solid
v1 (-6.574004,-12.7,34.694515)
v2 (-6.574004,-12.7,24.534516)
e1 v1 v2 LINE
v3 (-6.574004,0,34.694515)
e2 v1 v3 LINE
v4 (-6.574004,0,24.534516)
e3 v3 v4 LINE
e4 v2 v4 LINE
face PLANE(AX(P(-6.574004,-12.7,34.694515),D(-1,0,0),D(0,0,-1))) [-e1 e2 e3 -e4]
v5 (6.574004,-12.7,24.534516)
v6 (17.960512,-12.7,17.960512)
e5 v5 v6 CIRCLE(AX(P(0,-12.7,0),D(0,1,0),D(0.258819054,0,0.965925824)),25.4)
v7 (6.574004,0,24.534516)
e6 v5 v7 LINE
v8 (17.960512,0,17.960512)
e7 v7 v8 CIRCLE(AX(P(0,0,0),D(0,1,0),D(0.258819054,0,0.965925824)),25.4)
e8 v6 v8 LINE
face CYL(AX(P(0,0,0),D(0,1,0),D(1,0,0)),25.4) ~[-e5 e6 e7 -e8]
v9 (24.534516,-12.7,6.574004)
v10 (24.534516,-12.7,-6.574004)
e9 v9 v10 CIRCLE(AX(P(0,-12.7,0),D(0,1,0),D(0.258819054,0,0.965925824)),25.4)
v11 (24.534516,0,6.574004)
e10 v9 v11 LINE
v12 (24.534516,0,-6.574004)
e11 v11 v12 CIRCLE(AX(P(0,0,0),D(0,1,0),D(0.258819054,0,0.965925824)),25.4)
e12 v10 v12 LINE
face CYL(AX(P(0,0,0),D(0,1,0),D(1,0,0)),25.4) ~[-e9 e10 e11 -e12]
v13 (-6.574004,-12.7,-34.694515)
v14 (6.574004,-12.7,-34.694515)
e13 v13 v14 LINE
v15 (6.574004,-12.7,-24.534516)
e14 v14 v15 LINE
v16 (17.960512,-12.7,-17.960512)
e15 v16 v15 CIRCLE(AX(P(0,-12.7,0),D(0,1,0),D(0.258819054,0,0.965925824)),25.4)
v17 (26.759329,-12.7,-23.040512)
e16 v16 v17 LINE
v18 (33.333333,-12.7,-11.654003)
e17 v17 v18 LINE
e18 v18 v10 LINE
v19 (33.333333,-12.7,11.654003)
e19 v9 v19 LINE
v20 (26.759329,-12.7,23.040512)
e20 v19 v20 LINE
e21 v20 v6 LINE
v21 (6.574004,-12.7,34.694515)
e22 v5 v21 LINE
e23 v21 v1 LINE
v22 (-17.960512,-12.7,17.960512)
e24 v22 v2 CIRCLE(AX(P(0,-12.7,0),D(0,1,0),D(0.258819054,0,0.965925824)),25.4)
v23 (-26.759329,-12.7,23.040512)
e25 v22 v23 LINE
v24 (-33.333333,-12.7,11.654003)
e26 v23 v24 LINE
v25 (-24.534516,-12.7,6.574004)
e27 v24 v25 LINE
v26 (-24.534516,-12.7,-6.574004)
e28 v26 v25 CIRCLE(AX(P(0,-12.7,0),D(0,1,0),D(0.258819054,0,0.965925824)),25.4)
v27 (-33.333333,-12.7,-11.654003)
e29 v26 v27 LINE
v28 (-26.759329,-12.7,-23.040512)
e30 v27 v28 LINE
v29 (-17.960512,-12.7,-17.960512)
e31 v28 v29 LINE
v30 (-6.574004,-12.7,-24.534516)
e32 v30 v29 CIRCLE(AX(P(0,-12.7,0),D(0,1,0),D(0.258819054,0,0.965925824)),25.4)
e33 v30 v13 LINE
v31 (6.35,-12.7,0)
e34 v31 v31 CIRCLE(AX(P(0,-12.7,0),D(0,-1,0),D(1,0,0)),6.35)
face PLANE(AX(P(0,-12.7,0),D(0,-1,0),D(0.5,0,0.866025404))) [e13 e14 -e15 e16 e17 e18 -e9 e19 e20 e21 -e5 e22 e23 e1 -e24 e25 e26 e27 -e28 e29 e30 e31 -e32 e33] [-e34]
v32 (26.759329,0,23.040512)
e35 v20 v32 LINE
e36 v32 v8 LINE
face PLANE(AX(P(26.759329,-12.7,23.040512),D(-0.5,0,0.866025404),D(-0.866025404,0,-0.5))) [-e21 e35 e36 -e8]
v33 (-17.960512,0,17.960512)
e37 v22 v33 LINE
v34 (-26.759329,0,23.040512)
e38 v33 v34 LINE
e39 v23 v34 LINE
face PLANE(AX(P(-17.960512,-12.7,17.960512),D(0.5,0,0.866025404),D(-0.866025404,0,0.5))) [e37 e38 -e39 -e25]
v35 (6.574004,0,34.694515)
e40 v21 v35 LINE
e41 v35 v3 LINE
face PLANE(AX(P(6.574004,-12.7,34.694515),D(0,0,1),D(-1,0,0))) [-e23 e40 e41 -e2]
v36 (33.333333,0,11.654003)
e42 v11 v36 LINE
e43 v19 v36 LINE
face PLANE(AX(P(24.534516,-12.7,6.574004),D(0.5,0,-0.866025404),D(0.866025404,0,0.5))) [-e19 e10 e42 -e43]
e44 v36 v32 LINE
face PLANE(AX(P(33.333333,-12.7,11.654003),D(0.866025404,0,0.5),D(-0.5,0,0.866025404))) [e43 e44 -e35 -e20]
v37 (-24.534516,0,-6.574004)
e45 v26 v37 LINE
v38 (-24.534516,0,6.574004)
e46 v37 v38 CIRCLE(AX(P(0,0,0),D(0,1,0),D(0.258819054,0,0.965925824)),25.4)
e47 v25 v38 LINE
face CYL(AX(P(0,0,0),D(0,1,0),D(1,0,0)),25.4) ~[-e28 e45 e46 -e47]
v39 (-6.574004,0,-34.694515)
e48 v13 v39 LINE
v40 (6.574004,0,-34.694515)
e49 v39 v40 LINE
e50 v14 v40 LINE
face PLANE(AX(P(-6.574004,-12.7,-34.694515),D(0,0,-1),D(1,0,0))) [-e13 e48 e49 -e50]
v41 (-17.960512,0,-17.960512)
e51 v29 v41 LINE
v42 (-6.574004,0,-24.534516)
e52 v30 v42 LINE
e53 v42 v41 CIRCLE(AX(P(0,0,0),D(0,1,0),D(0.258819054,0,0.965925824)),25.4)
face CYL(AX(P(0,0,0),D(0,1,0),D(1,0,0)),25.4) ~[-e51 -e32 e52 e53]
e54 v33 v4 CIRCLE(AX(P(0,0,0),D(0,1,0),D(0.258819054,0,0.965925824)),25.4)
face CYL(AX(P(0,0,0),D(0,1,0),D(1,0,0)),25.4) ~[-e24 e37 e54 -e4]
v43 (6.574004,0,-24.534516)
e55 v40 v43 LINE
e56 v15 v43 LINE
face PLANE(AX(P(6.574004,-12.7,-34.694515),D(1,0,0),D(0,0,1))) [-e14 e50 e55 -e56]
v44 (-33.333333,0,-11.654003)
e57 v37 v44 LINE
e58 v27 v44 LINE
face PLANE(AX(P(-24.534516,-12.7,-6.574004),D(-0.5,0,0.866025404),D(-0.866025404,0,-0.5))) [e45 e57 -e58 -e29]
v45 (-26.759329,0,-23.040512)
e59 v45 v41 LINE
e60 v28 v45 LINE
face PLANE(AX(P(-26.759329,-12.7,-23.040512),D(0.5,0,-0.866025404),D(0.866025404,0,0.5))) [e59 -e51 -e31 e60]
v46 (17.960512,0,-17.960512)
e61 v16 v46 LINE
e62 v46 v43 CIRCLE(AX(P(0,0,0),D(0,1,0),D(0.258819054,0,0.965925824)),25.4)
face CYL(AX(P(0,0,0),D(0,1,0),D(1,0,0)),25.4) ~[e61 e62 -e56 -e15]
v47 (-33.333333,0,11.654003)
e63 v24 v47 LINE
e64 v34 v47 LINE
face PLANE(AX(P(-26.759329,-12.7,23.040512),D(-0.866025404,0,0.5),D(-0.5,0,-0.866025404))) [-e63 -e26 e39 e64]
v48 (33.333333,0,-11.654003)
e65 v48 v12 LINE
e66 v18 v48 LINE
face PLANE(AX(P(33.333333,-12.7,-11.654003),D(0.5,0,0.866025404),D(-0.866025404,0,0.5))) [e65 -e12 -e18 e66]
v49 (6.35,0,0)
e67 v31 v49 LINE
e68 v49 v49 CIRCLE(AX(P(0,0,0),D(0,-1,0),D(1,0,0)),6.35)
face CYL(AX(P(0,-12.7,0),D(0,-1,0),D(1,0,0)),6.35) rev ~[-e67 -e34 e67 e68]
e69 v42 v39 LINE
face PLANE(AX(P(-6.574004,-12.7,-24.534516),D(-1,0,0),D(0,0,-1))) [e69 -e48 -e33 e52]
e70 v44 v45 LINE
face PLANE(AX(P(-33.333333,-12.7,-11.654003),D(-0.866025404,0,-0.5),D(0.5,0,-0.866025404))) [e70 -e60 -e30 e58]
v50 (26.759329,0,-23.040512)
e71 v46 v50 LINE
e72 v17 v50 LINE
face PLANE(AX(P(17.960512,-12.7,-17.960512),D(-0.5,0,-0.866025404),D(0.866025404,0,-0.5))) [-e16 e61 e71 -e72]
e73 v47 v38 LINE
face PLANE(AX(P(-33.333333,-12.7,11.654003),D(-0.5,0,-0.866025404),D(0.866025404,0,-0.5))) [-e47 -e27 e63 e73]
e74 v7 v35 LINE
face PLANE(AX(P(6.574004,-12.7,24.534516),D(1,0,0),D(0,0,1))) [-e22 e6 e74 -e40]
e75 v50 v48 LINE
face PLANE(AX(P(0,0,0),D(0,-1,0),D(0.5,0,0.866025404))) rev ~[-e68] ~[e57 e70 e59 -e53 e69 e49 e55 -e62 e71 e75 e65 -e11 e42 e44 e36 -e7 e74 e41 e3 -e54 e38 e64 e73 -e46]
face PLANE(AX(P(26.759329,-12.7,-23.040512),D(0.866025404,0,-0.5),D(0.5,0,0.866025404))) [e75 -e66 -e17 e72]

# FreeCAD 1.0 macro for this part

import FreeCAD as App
import Part
import Sketcher
Q = App.Units.Quantity


def add_polygon(sketch, points):
    """Adds a closed chain of lines whose ends are joined by coincident constraints."""
    first, n = sketch.GeometryCount, len(points)
    for a, b in zip(points, points[1:] + points[:1]):
        sketch.addGeometry(Part.LineSegment(App.Vector(*a, 0), App.Vector(*b, 0)), False)
    for i in range(n):
        sketch.addConstraint(Sketcher.Constraint("Coincident", first + i, 2, first + (i + 1) % n, 1))

doc = App.newDocument("Part")
body = doc.addObject("PartDesign::Body", "Body")

# Sketch on XZ plane
sketch1 = body.newObject("Sketcher::SketchObject", "Sketch")
sketch1.AttachmentSupport = (doc.getObject("XZ_Plane"), [""])
sketch1.MapMode = "FlatFace"
sketch1.addGeometry(Part.Circle(App.Vector(0, 0, 0), App.Vector(0, 0, 1), 25.4), False)
sketch1.addConstraint([
    Sketcher.Constraint("Coincident", 0, 3, -1, 1),
    Sketcher.Constraint("Diameter", 0, Q("2 in")),
])
pad1 = body.newObject("PartDesign::Pad", "Pad")
pad1.Profile = sketch1
pad1.Length = Q("0.5 in")

# Sketch on XZ plane
sketch2 = body.newObject("Sketcher::SketchObject", "Sketch001")
sketch2.AttachmentSupport = (doc.getObject("XZ_Plane"), [""])
sketch2.MapMode = "FlatFace"
sketch2.AttachmentOffset = App.Placement(App.Vector(0, 0, 0.5 * 25.4), App.Rotation())
add_polygon(sketch2, [(-6.574004, 24.534516), (0, 0), (6.574004, 24.534516), (6.574004, 34.694515), (-6.574004, 34.694515)])  # lines 0-4
sketch2.addConstraint([
    Sketcher.Constraint("Vertical", 2),
    Sketcher.Constraint("Horizontal", 3),
    Sketcher.Constraint("Vertical", 4),
    Sketcher.Constraint("Coincident", 0, 2, -1, 1),
    Sketcher.Constraint("Symmetric", 1, 2, 4, 2, -2),
    Sketcher.Constraint("Distance", 0, Q("1 in")),
    Sketcher.Constraint("DistanceY", 2, 1, 2, 2, Q("0.4 in")),
    Sketcher.Constraint("Angle", 0, Q("-74.999999 deg")),
])
pad2 = body.newObject("PartDesign::Pad", "Pad001")
pad2.Profile = sketch2
pad2.Length = Q("0.5 in")
pad2.Reversed = True

# Sketch on XZ plane
sketch3 = body.newObject("Sketcher::SketchObject", "Sketch002")
sketch3.AttachmentSupport = (doc.getObject("XZ_Plane"), [""])
sketch3.MapMode = "FlatFace"
sketch3.AttachmentOffset = App.Placement(App.Vector(0, 0, 0.5 * 25.4), App.Rotation())
add_polygon(sketch3, [(-6.574004, 24.534516), (0, 0), (6.574004, 24.534516), (6.574004, 34.694515), (-6.574004, 34.694515)])  # lines 0-4
sketch3.addConstraint([
    Sketcher.Constraint("Vertical", 2),
    Sketcher.Constraint("Horizontal", 3),
    Sketcher.Constraint("Vertical", 4),
    Sketcher.Constraint("Coincident", 0, 2, -1, 1),
    Sketcher.Constraint("Symmetric", 1, 2, 4, 2, -2),
    Sketcher.Constraint("Distance", 0, Q("1 in")),
    Sketcher.Constraint("DistanceY", 2, 1, 2, 2, Q("0.4 in")),
    Sketcher.Constraint("Angle", 0, Q("-74.999999 deg")),
])
pad3 = body.newObject("PartDesign::Pad", "Pad002")
pad3.Profile = sketch3
pad3.Length = Q("0.5 in")
pad3.Reversed = True
body2 = doc.addObject("PartDesign::Body", "Body001")
doc.recompute()

body2.BaseFeature = body
doc.recompute()

body3 = doc.addObject("PartDesign::Body", "Body002")
body3.BaseFeature = body
body3.Placement = App.Placement(App.Vector(0, 0, 0), App.Rotation(App.Vector(0, 1, 0), 60))
boolean = body2.newObject("PartDesign::Boolean", "Boolean")
boolean.Type = "Fuse"
boolean.addObjects([body3])
doc.recompute()

body4 = doc.addObject("PartDesign::Body", "Body003")
body4.BaseFeature = body
body4.Placement = App.Placement(App.Vector(0, 0, 0), App.Rotation(App.Vector(0, 1, 0), 120))
boolean2 = body2.newObject("PartDesign::Boolean", "Boolean001")
boolean2.Type = "Fuse"
boolean2.addObjects([body4])
doc.recompute()

body5 = doc.addObject("PartDesign::Body", "Body004")
body5.BaseFeature = body
body5.Placement = App.Placement(App.Vector(0, 0, 0), App.Rotation(App.Vector(0, 1, 0), 180))
boolean3 = body2.newObject("PartDesign::Boolean", "Boolean002")
boolean3.Type = "Fuse"
boolean3.addObjects([body5])
doc.recompute()

body6 = doc.addObject("PartDesign::Body", "Body005")
body6.BaseFeature = body
body6.Placement = App.Placement(App.Vector(0, 0, 0), App.Rotation(App.Vector(0, 1, 0), 240))
boolean4 = body2.newObject("PartDesign::Boolean", "Boolean003")
boolean4.Type = "Fuse"
boolean4.addObjects([body6])
doc.recompute()

body.Placement = App.Placement(App.Vector(0, 0, 0), App.Rotation(App.Vector(0, 1, 0), 300))
boolean5 = body2.newObject("PartDesign::Boolean", "Boolean004")
boolean5.Type = "Fuse"
boolean5.addObjects([body])

# Sketch on XZ plane
sketch4 = body2.newObject("Sketcher::SketchObject", "Sketch003")
sketch4.AttachmentSupport = (doc.getObject("XZ_Plane001"), [""])
sketch4.MapMode = "FlatFace"
sketch4.AttachmentOffset = App.Placement(App.Vector(0, 0, 0.5 * 25.4), App.Rotation())
sketch4.addGeometry(Part.Circle(App.Vector(0, 0, 0), App.Vector(0, 0, 1), 6.35), False)
sketch4.addConstraint([
    Sketcher.Constraint("Coincident", 0, 3, -1, 1),
    Sketcher.Constraint("Diameter", 0, Q("0.5 in")),
])
pocket1 = body2.newObject("PartDesign::Pocket", "Pocket")
pocket1.Profile = sketch4
pocket1.Length = Q("1 in")

doc.recompute()
